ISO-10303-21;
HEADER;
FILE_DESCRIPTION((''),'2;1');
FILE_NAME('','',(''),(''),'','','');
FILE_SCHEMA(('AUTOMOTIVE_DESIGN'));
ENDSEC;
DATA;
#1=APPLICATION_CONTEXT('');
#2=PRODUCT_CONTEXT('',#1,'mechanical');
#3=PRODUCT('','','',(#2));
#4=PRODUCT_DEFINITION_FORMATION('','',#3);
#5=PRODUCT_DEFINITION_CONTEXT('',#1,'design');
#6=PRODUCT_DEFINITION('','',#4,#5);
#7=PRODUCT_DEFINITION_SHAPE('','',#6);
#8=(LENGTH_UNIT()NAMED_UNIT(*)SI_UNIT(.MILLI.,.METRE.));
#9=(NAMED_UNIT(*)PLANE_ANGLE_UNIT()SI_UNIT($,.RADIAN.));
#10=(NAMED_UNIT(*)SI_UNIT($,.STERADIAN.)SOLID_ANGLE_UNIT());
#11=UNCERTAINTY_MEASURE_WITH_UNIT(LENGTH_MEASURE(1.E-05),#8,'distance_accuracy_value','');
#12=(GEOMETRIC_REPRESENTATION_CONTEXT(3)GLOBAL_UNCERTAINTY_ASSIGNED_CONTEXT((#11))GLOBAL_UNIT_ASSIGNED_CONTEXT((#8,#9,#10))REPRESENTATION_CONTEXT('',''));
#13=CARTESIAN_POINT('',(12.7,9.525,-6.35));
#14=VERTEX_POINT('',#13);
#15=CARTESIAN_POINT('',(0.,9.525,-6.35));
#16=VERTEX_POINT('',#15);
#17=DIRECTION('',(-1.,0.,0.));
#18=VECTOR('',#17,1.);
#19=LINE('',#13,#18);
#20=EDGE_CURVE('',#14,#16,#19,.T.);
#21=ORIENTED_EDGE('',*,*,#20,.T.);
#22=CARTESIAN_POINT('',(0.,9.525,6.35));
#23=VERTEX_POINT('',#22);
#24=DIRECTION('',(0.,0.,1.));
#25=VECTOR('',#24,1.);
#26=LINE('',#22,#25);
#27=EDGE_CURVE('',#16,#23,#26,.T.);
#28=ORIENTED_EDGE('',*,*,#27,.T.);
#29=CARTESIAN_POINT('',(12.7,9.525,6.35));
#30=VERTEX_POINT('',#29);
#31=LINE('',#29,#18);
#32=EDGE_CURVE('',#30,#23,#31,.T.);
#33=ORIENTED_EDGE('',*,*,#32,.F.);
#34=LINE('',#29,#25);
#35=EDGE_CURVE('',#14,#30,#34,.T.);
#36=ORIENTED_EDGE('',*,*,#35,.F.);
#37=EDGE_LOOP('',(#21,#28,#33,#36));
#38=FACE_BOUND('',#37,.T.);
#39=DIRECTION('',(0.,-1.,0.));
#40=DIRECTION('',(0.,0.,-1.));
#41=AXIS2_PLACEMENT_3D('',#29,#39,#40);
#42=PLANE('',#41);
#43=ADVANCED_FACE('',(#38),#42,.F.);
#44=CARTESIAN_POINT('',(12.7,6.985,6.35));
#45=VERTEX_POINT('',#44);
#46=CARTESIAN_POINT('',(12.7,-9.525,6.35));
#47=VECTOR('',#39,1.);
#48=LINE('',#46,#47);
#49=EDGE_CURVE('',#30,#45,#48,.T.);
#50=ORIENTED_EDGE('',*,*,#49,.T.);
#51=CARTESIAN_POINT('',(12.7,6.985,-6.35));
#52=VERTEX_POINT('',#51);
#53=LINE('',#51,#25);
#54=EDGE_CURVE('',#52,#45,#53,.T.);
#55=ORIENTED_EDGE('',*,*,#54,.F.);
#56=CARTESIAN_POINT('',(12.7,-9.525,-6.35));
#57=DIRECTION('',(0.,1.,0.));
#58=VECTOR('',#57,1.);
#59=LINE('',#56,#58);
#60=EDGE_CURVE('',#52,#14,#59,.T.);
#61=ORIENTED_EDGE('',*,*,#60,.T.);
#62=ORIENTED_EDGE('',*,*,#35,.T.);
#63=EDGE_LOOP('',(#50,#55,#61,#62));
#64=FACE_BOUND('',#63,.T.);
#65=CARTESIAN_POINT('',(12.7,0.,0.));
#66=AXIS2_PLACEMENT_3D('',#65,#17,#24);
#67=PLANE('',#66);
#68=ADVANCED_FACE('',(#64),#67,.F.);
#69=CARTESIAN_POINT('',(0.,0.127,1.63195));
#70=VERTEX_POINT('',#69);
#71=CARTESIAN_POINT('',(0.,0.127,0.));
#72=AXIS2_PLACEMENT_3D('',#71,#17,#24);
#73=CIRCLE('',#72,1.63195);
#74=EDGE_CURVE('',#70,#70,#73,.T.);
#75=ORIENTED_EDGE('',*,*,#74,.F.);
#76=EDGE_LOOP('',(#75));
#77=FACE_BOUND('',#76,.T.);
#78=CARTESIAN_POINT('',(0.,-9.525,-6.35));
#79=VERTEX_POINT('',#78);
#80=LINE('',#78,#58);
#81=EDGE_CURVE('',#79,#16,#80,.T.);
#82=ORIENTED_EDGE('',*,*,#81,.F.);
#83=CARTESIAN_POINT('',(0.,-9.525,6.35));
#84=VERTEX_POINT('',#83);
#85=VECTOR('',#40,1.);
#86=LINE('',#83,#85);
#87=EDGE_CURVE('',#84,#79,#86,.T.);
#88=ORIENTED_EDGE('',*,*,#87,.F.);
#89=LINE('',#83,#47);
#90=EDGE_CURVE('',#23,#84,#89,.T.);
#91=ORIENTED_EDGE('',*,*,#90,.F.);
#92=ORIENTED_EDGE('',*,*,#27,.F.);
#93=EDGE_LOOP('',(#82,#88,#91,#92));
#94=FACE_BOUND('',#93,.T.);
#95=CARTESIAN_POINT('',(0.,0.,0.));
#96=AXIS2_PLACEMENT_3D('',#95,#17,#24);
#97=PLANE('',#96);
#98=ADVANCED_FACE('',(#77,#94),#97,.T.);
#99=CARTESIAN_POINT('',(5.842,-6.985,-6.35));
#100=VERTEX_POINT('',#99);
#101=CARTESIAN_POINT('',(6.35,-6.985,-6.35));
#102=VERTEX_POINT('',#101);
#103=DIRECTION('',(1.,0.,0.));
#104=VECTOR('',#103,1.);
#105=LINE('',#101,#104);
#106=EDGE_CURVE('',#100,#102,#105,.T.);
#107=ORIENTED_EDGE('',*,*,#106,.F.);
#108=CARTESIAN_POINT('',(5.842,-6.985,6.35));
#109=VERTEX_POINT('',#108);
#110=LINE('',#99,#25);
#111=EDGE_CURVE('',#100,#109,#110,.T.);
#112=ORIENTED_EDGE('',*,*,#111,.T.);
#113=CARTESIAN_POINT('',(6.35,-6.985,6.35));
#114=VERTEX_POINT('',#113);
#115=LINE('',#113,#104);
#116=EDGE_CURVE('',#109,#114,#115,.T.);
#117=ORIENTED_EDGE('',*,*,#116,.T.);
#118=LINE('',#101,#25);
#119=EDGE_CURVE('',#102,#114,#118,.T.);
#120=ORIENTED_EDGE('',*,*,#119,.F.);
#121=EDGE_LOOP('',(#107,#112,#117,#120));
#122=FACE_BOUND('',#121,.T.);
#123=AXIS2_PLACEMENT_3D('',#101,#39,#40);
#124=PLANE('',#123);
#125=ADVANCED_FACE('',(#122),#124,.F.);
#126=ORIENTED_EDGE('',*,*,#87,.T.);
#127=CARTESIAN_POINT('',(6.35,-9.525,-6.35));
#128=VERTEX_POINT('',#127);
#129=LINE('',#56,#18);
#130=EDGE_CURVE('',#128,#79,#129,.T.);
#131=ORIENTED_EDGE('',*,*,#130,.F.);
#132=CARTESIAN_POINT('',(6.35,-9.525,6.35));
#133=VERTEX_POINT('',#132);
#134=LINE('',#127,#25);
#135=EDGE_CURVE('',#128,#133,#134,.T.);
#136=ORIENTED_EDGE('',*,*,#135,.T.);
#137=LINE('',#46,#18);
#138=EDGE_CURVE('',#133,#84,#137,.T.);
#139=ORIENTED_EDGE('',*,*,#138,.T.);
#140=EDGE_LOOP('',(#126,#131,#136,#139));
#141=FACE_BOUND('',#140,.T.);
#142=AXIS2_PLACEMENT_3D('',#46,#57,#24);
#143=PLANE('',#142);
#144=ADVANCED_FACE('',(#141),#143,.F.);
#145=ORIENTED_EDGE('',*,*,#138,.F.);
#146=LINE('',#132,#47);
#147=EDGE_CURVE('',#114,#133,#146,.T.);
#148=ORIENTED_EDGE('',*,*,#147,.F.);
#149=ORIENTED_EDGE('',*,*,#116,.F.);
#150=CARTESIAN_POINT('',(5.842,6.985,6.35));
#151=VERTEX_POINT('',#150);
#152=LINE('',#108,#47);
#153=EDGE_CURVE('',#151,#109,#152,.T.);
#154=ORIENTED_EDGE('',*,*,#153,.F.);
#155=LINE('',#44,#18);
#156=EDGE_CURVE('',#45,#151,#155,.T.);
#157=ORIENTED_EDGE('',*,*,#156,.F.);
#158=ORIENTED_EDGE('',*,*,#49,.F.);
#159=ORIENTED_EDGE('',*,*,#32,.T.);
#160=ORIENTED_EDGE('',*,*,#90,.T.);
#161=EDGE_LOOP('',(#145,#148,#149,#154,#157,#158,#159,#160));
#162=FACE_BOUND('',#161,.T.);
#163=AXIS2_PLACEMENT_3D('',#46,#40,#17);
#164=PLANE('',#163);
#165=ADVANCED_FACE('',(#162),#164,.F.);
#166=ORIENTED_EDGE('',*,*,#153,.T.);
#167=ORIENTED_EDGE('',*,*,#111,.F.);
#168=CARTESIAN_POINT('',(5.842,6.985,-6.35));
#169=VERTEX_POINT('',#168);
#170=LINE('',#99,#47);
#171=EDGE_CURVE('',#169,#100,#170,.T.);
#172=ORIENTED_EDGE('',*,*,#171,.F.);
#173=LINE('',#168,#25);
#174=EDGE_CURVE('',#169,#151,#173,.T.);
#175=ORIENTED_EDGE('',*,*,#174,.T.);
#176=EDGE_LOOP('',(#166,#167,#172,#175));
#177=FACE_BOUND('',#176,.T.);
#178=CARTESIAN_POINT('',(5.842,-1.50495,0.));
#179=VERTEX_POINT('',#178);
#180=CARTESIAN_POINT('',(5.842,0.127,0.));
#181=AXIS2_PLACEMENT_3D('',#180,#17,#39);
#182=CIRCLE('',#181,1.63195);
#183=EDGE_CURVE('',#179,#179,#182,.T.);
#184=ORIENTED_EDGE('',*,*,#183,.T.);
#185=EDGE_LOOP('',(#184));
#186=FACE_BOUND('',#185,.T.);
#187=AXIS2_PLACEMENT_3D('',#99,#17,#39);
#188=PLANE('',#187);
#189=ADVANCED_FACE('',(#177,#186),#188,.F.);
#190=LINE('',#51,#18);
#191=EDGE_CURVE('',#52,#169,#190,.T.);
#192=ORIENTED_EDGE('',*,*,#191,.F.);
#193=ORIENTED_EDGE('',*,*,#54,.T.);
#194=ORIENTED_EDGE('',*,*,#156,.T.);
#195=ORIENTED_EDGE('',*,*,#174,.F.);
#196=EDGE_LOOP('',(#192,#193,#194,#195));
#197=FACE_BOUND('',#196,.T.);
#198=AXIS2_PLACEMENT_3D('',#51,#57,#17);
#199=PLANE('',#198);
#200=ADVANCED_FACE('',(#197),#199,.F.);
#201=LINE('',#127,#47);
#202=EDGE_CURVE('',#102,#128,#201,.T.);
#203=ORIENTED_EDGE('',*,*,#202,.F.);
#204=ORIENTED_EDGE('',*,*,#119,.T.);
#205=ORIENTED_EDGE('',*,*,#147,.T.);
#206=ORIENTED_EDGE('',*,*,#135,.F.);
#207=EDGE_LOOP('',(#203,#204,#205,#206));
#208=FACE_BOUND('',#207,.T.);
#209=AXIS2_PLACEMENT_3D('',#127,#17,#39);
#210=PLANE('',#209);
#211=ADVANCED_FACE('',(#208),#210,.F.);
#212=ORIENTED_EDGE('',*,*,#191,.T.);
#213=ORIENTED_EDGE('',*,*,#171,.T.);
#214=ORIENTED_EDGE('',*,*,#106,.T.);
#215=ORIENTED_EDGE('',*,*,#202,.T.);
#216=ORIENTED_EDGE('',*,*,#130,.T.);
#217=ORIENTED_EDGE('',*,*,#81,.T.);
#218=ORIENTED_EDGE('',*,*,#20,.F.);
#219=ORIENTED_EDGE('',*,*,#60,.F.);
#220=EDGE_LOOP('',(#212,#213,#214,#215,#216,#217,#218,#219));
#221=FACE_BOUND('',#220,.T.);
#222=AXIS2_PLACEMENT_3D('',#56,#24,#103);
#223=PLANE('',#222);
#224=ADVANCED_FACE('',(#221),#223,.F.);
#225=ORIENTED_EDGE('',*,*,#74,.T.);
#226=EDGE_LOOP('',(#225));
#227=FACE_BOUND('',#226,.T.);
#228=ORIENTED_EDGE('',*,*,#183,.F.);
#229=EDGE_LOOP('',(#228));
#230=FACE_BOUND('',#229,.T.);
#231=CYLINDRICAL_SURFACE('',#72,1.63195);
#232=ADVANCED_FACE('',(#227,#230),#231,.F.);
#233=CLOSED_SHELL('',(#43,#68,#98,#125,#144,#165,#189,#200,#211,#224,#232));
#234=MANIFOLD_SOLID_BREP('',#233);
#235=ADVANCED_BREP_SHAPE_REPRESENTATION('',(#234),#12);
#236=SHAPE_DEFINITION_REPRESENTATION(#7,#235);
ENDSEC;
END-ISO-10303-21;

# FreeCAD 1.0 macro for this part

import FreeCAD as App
import Part
import Sketcher
Q = App.Units.Quantity

doc = App.newDocument("Part")
params = doc.addObject("Spreadsheet::Sheet", "Params")
for row, (alias, value) in enumerate([
    ("sketch1_height", "0.5 in"),
    ("sketch1_width", "0.75 in"),
    ("pad1_length", "0.5 in"),
    ("sketch2_width", "0.25 in"),
    ("sketch2_height", "0.65 in"),
    ("sketch3_width", "0.02 in"),
    ("sketch3_height", "0.55 in"),
    ("hole_diameter", "0.1285 in"),
], start=1):
    params.set(f"A{row}", alias)
    params.set(f"B{row}", "=" + value)
    params.setAlias(f"B{row}", alias)

body = doc.addObject("PartDesign::Body", "Body")

# Sketch on YZ plane
sketch1 = body.newObject("Sketcher::SketchObject", "Sketch")
sketch1.AttachmentSupport = (doc.getObject("YZ_Plane"), [""])
sketch1.MapMode = "FlatFace"
sketch1.addGeometry(Part.LineSegment(App.Vector(9.525, 6.35, 0), App.Vector(-9.525, 6.35, 0)), False)
sketch1.addGeometry(Part.LineSegment(App.Vector(-9.525, 6.35, 0), App.Vector(-9.525, -6.35, 0)), False)
sketch1.addGeometry(Part.LineSegment(App.Vector(-9.525, -6.35, 0), App.Vector(9.525, -6.35, 0)), False)
sketch1.addGeometry(Part.LineSegment(App.Vector(9.525, -6.35, 0), App.Vector(9.525, 6.35, 0)), False)
sketch1.addConstraint(Sketcher.Constraint("Coincident", 0, 2, 1, 1))
sketch1.addConstraint(Sketcher.Constraint("Coincident", 1, 2, 2, 1))
sketch1.addConstraint(Sketcher.Constraint("Coincident", 2, 2, 3, 1))
sketch1.addConstraint(Sketcher.Constraint("Coincident", 3, 2, 0, 1))
sketch1.addConstraint(Sketcher.Constraint("Horizontal", 0))
sketch1.addConstraint(Sketcher.Constraint("Vertical", 1))
sketch1.addConstraint(Sketcher.Constraint("Horizontal", 2))
sketch1.addConstraint(Sketcher.Constraint("Vertical", 3))
sketch1.addConstraint(Sketcher.Constraint("Symmetric", 0, 2, 2, 2, -1, 1))
sketch1.addConstraint(Sketcher.Constraint("DistanceY", 1, 2, 1, 1, Q("0.5 in")))
sketch1.addConstraint(Sketcher.Constraint("DistanceX", 0, 2, 0, 1, Q("0.75 in")))
sketch1.setExpression("Constraints[9]", "Params.sketch1_height")
sketch1.setExpression("Constraints[10]", "Params.sketch1_width")
pad1 = body.newObject("PartDesign::Pad", "Pad")
pad1.Profile = sketch1
pad1.setExpression("Length", "Params.pad1_length")

# Sketch on XY plane
sketch2 = body.newObject("Sketcher::SketchObject", "Sketch001")
sketch2.AttachmentSupport = (doc.getObject("XY_Plane"), [""])
sketch2.MapMode = "FlatFace"
sketch2.AttachmentOffset = App.Placement(App.Vector(0, 0, 0.25 * 25.4), App.Rotation())
sketch2.addGeometry(Part.LineSegment(App.Vector(6.35, 6.985, 0), App.Vector(6.35, -9.525, 0)), False)
sketch2.addGeometry(Part.LineSegment(App.Vector(6.35, -9.525, 0), App.Vector(12.7, -9.525, 0)), False)
sketch2.addGeometry(Part.LineSegment(App.Vector(12.7, -9.525, 0), App.Vector(12.7, 6.985, 0)), False)
sketch2.addGeometry(Part.LineSegment(App.Vector(12.7, 6.985, 0), App.Vector(6.35, 6.985, 0)), False)
sketch2.addConstraint(Sketcher.Constraint("Coincident", 0, 2, 1, 1))
sketch2.addConstraint(Sketcher.Constraint("Coincident", 1, 2, 2, 1))
sketch2.addConstraint(Sketcher.Constraint("Coincident", 2, 2, 3, 1))
sketch2.addConstraint(Sketcher.Constraint("Coincident", 3, 2, 0, 1))
sketch2.addConstraint(Sketcher.Constraint("Vertical", 0))
sketch2.addConstraint(Sketcher.Constraint("Horizontal", 1))
sketch2.addConstraint(Sketcher.Constraint("Vertical", 2))
sketch2.addConstraint(Sketcher.Constraint("Horizontal", 3))
sketch2.addConstraint(Sketcher.Constraint("DistanceX", 1, 1, 1, 2, Q("0.25 in")))
sketch2.addConstraint(Sketcher.Constraint("DistanceY", 0, 2, 0, 1, Q("0.65 in")))
sketch2.addConstraint(Sketcher.Constraint("DistanceX", -1, 1, 1, 2, Q("0.5 in")))
sketch2.addConstraint(Sketcher.Constraint("DistanceY", 0, 2, -1, 1, Q("0.375 in")))
sketch2.setExpression("Constraints[8]", "Params.sketch2_width")
sketch2.setExpression("Constraints[9]", "Params.sketch2_height")
pocket1 = body.newObject("PartDesign::Pocket", "Pocket")
pocket1.Profile = sketch2
pocket1.Type = "ThroughAll"

# Sketch on XY plane
sketch3 = body.newObject("Sketcher::SketchObject", "Sketch002")
sketch3.AttachmentSupport = (doc.getObject("XY_Plane"), [""])
sketch3.MapMode = "FlatFace"
sketch3.AttachmentOffset = App.Placement(App.Vector(0, 0, 0.25 * 25.4), App.Rotation())
sketch3.addGeometry(Part.LineSegment(App.Vector(5.842, 6.985, 0), App.Vector(5.842, -6.985, 0)), False)
sketch3.addGeometry(Part.LineSegment(App.Vector(5.842, -6.985, 0), App.Vector(6.35, -6.985, 0)), False)
sketch3.addGeometry(Part.LineSegment(App.Vector(6.35, -6.985, 0), App.Vector(6.35, 6.985, 0)), False)
sketch3.addGeometry(Part.LineSegment(App.Vector(6.35, 6.985, 0), App.Vector(5.842, 6.985, 0)), False)
sketch3.addConstraint(Sketcher.Constraint("Coincident", 0, 2, 1, 1))
sketch3.addConstraint(Sketcher.Constraint("Coincident", 1, 2, 2, 1))
sketch3.addConstraint(Sketcher.Constraint("Coincident", 2, 2, 3, 1))
sketch3.addConstraint(Sketcher.Constraint("Coincident", 3, 2, 0, 1))
sketch3.addConstraint(Sketcher.Constraint("Vertical", 0))
sketch3.addConstraint(Sketcher.Constraint("Horizontal", 1))
sketch3.addConstraint(Sketcher.Constraint("Vertical", 2))
sketch3.addConstraint(Sketcher.Constraint("Horizontal", 3))
sketch3.addConstraint(Sketcher.Constraint("DistanceX", 1, 1, 1, 2, Q("0.02 in")))
sketch3.addConstraint(Sketcher.Constraint("DistanceY", 0, 2, 0, 1, Q("0.55 in")))
sketch3.addConstraint(Sketcher.Constraint("DistanceX", -1, 1, 0, 2, Q("0.23 in")))
sketch3.addConstraint(Sketcher.Constraint("DistanceY", 0, 2, -1, 1, Q("0.275 in")))
sketch3.setExpression("Constraints[8]", "Params.sketch3_width")
sketch3.setExpression("Constraints[9]", "Params.sketch3_height")
pocket2 = body.newObject("PartDesign::Pocket", "Pocket001")
pocket2.Profile = sketch3
pocket2.Type = "ThroughAll"

# Sketch on YZ plane
sketch4 = body.newObject("Sketcher::SketchObject", "Sketch003")
sketch4.AttachmentSupport = (doc.getObject("YZ_Plane"), [""])
sketch4.MapMode = "FlatFace"
sketch4.addGeometry(Part.Circle(App.Vector(0.127, 0, 0), App.Vector(0, 0, 1), 1.63195), False)
sketch4.addConstraint(Sketcher.Constraint("PointOnObject", 0, 3, -1))
sketch4.addConstraint(Sketcher.Constraint("Diameter", 0, Q("0.1285 in")))
sketch4.addConstraint(Sketcher.Constraint("DistanceX", -1, 1, 0, 3, Q("0.005 in")))
doc.recompute()
hole = body.newObject("PartDesign::Hole", "Hole")
hole.Profile = sketch4
hole.ThreadType = "None"
hole.setExpression("Diameter", "Params.hole_diameter")
hole.DepthType = "ThroughAll"
hole.Reversed = True

doc.recompute()
